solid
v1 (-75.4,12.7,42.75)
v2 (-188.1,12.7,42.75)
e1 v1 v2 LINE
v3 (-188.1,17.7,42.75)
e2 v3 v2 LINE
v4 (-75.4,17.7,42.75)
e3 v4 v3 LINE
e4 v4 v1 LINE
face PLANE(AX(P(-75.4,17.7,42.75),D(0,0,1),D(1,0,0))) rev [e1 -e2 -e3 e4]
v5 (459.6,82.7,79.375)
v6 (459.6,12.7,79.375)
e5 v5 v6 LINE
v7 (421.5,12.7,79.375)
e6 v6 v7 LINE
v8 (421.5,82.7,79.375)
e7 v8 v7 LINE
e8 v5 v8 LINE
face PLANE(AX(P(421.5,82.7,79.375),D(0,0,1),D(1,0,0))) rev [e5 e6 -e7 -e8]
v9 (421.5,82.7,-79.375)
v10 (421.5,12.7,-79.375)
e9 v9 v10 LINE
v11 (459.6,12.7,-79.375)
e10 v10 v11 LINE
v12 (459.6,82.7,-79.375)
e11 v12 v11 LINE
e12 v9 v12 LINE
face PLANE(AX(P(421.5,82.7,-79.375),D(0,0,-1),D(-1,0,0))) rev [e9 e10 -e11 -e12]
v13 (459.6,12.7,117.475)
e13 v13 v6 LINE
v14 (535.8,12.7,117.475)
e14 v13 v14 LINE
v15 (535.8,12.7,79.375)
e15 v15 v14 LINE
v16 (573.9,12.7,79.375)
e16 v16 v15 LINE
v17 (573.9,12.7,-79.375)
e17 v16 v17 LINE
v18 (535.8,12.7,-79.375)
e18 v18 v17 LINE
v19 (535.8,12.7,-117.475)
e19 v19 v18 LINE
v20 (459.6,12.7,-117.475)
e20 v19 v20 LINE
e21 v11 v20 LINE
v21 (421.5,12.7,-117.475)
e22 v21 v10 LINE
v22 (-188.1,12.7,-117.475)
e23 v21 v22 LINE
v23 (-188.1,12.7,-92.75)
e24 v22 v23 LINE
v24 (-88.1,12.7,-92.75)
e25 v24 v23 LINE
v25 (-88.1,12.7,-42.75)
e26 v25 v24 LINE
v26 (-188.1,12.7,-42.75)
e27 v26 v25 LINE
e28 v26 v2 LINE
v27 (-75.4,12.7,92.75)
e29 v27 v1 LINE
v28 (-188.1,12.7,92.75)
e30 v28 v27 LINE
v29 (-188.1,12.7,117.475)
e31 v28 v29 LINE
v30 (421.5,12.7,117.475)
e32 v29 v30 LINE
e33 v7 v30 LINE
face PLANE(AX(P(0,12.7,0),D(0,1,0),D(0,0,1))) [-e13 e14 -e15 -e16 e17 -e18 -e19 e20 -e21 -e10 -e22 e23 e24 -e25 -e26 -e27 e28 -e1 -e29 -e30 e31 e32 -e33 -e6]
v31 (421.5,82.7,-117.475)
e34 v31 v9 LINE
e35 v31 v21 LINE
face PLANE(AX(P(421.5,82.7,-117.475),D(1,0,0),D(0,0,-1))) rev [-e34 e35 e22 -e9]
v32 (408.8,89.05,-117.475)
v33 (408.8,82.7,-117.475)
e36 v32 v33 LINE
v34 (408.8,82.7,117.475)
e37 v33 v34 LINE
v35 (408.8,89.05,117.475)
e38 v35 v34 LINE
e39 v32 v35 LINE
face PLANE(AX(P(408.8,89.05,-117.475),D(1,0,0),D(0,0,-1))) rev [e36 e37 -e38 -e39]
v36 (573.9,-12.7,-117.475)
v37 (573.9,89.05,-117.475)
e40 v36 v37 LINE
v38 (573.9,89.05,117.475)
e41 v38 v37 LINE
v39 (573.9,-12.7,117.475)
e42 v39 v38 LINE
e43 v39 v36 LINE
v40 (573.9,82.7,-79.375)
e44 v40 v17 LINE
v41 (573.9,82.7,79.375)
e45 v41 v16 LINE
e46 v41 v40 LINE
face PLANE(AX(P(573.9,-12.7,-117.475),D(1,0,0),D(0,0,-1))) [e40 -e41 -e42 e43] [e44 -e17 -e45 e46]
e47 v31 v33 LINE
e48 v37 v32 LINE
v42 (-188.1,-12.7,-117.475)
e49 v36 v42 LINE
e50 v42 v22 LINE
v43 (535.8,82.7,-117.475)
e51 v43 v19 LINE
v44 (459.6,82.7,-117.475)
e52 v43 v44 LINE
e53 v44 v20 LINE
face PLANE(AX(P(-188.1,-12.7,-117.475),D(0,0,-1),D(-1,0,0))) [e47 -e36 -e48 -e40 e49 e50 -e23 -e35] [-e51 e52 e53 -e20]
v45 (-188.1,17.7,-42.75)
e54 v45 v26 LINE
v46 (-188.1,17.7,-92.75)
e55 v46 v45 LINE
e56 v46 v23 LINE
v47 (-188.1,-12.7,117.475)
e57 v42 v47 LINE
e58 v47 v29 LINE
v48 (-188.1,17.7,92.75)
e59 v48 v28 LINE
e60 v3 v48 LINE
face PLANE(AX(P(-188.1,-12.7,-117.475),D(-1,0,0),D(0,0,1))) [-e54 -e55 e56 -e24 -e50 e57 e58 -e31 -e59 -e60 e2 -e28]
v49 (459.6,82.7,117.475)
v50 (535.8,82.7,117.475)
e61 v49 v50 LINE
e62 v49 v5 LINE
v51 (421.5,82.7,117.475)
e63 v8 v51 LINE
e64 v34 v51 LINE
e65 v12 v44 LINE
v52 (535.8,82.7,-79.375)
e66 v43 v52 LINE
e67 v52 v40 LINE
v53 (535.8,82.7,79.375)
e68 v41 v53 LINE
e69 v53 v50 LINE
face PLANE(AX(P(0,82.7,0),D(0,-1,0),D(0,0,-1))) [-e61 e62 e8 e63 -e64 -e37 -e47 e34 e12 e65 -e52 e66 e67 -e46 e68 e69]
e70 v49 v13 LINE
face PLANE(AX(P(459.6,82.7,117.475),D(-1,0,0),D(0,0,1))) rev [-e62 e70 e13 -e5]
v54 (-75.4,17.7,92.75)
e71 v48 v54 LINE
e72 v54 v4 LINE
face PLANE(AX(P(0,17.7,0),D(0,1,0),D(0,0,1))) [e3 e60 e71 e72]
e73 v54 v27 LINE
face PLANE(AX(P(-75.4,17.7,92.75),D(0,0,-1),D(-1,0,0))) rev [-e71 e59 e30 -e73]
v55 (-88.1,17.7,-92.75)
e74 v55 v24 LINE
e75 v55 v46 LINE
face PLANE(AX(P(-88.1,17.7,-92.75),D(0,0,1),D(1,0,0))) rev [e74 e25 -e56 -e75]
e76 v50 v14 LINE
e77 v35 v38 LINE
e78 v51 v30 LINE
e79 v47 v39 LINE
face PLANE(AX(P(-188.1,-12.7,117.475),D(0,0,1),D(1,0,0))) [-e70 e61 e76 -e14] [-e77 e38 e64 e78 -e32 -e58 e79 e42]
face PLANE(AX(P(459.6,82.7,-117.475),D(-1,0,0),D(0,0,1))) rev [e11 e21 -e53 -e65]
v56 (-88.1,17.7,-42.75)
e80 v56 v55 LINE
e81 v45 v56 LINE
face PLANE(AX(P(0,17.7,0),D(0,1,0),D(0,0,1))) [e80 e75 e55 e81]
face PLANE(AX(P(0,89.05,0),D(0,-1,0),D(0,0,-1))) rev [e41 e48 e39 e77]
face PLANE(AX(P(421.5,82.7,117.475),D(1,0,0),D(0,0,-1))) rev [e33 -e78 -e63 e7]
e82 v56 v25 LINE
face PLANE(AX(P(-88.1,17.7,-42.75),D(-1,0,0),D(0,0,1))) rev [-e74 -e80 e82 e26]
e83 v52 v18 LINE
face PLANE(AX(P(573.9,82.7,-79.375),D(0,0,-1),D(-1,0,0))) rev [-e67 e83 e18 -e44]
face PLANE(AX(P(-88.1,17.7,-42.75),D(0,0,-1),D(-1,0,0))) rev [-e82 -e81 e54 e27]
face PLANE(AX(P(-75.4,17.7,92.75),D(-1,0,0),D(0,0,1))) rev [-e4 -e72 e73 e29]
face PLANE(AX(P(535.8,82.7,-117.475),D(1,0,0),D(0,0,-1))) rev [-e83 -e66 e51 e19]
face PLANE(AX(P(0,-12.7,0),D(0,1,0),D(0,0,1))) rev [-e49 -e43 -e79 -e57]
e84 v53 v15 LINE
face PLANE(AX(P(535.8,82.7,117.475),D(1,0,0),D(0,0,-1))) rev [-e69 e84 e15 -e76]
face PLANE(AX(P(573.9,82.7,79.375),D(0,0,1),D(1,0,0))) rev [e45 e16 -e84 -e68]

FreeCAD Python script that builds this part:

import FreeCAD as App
import Part
import Sketcher
from FreeCAD import Vector
Q = App.Units.Quantity

doc = App.newDocument("Part")
params = doc.addObject("Spreadsheet::Sheet", "Params")
for row, (alias, value) in enumerate([
    ("sketch1_width", "30 in"),
    ("sketch1_height", "9.25 in"),
    ("pad1_length", "1 in"),
    ("sketch2_width", "1.5 in"),
    ("pad2_length", "70 mm"),
    ("sketch3_width", "6.5 in"),
    ("sketch3_height", "9.25 in"),
    ("pad3_length", "0.25 in"),
    ("pad4_length", "5 mm"),
], start=1):
    params.set(f"A{row}", alias)
    params.set(f"B{row}", "=" + value)
    params.setAlias(f"B{row}", alias)

body = doc.addObject("PartDesign::Body", "Body")

sketch1 = body.newObject("Sketcher::SketchObject", "Sketch")
sketch1.AttachmentSupport = (doc.getObject("XZ_Plane"), [""])
sketch1.MapMode = "FlatFace"
sketch1.addGeometry(Part.LineSegment(Vector(-188, -117, 0), Vector(-188, 117, 0)), False)
sketch1.addGeometry(Part.LineSegment(Vector(-188, 117, 0), Vector(574, 117, 0)), False)
sketch1.addGeometry(Part.LineSegment(Vector(574, 117, 0), Vector(574, -117, 0)), False)
sketch1.addGeometry(Part.LineSegment(Vector(574, -117, 0), Vector(-188, -117, 0)), False)
sketch1.addConstraint(Sketcher.Constraint("Coincident", 0, 2, 1, 1))
sketch1.addConstraint(Sketcher.Constraint("Coincident", 1, 2, 2, 1))
sketch1.addConstraint(Sketcher.Constraint("Coincident", 2, 2, 3, 1))
sketch1.addConstraint(Sketcher.Constraint("Coincident", 3, 2, 0, 1))
sketch1.addConstraint(Sketcher.Constraint("Vertical", 0))
sketch1.addConstraint(Sketcher.Constraint("Horizontal", 1))
sketch1.addConstraint(Sketcher.Constraint("Vertical", 2))
sketch1.addConstraint(Sketcher.Constraint("Horizontal", 3))
sketch1.addConstraint(Sketcher.Constraint("DistanceX", 1, 1, 1, 2, Q("30 in")))
sketch1.addConstraint(Sketcher.Constraint("DistanceY", 0, 1, 0, 2, Q("9.25 in")))
sketch1.addConstraint(Sketcher.Constraint("DistanceY", -1, 1, 0, 2, Q("4.625 in")))
sketch1.addConstraint(Sketcher.Constraint("DistanceX", 0, 2, -1, 1, 188.1))
sketch1.setExpression("Constraints[8]", "Params.sketch1_width")
sketch1.setExpression("Constraints[9]", "Params.sketch1_height")
pad1 = body.newObject("PartDesign::Pad", "Pad")
pad1.Profile = sketch1
pad1.setExpression("Length", "Params.pad1_length")
pad1.Midplane = True

sketch2 = body.newObject("Sketcher::SketchObject", "Sketch001")
sketch2.AttachmentSupport = (doc.getObject("XZ_Plane"), [""])
sketch2.MapMode = "FlatFace"
sketch2.AttachmentOffset = App.Placement(Vector(0, 0, -0.5 * 25.4), App.Rotation())
sketch2.addGeometry(Part.LineSegment(Vector(536, -117, 0), Vector(536, -79, 0)), False)
sketch2.addGeometry(Part.LineSegment(Vector(536, -79, 0), Vector(574, -79, 0)), False)
sketch2.addGeometry(Part.LineSegment(Vector(574, -79, 0), Vector(574, -117, 0)), False)
sketch2.addGeometry(Part.LineSegment(Vector(574, -117, 0), Vector(536, -117, 0)), False)
sketch2.addGeometry(Part.LineSegment(Vector(536, 79, 0), Vector(536, 117, 0)), False)
sketch2.addGeometry(Part.LineSegment(Vector(536, 117, 0), Vector(574, 117, 0)), False)
sketch2.addGeometry(Part.LineSegment(Vector(574, 117, 0), Vector(574, 79, 0)), False)
sketch2.addGeometry(Part.LineSegment(Vector(574, 79, 0), Vector(536, 79, 0)), False)
sketch2.addGeometry(Part.LineSegment(Vector(422, 79, 0), Vector(422, 117, 0)), False)
sketch2.addGeometry(Part.LineSegment(Vector(422, 117, 0), Vector(460, 117, 0)), False)
sketch2.addGeometry(Part.LineSegment(Vector(460, 117, 0), Vector(460, 79, 0)), False)
sketch2.addGeometry(Part.LineSegment(Vector(460, 79, 0), Vector(422, 79, 0)), False)
sketch2.addGeometry(Part.LineSegment(Vector(422, -117, 0), Vector(422, -79, 0)), False)
sketch2.addGeometry(Part.LineSegment(Vector(422, -79, 0), Vector(460, -79, 0)), False)
sketch2.addGeometry(Part.LineSegment(Vector(460, -79, 0), Vector(460, -117, 0)), False)
sketch2.addGeometry(Part.LineSegment(Vector(460, -117, 0), Vector(422, -117, 0)), False)
sketch2.addConstraint(Sketcher.Constraint("Coincident", 0, 2, 1, 1))
sketch2.addConstraint(Sketcher.Constraint("Coincident", 1, 2, 2, 1))
sketch2.addConstraint(Sketcher.Constraint("Coincident", 2, 2, 3, 1))
sketch2.addConstraint(Sketcher.Constraint("Coincident", 3, 2, 0, 1))
sketch2.addConstraint(Sketcher.Constraint("Coincident", 4, 2, 5, 1))
sketch2.addConstraint(Sketcher.Constraint("Coincident", 5, 2, 6, 1))
sketch2.addConstraint(Sketcher.Constraint("Coincident", 6, 2, 7, 1))
sketch2.addConstraint(Sketcher.Constraint("Coincident", 7, 2, 4, 1))
sketch2.addConstraint(Sketcher.Constraint("Coincident", 8, 2, 9, 1))
sketch2.addConstraint(Sketcher.Constraint("Coincident", 9, 2, 10, 1))
sketch2.addConstraint(Sketcher.Constraint("Coincident", 10, 2, 11, 1))
sketch2.addConstraint(Sketcher.Constraint("Coincident", 11, 2, 8, 1))
sketch2.addConstraint(Sketcher.Constraint("Coincident", 12, 2, 13, 1))
sketch2.addConstraint(Sketcher.Constraint("Coincident", 13, 2, 14, 1))
sketch2.addConstraint(Sketcher.Constraint("Coincident", 14, 2, 15, 1))
sketch2.addConstraint(Sketcher.Constraint("Coincident", 15, 2, 12, 1))
sketch2.addConstraint(Sketcher.Constraint("Vertical", 0))
sketch2.addConstraint(Sketcher.Constraint("Horizontal", 1))
sketch2.addConstraint(Sketcher.Constraint("Vertical", 2))
sketch2.addConstraint(Sketcher.Constraint("Horizontal", 3))
sketch2.addConstraint(Sketcher.Constraint("Vertical", 4))
sketch2.addConstraint(Sketcher.Constraint("Horizontal", 5))
sketch2.addConstraint(Sketcher.Constraint("Vertical", 6))
sketch2.addConstraint(Sketcher.Constraint("Horizontal", 7))
sketch2.addConstraint(Sketcher.Constraint("Vertical", 8))
sketch2.addConstraint(Sketcher.Constraint("Horizontal", 9))
sketch2.addConstraint(Sketcher.Constraint("Vertical", 10))
sketch2.addConstraint(Sketcher.Constraint("Horizontal", 11))
sketch2.addConstraint(Sketcher.Constraint("Vertical", 12))
sketch2.addConstraint(Sketcher.Constraint("Horizontal", 13))
sketch2.addConstraint(Sketcher.Constraint("Vertical", 14))
sketch2.addConstraint(Sketcher.Constraint("Horizontal", 15))
sketch2.addConstraint(Sketcher.Constraint("Symmetric", 3, 2, 4, 2, -1))
sketch2.addConstraint(Sketcher.Constraint("Symmetric", 1, 2, 6, 2, -1))
sketch2.addConstraint(Sketcher.Constraint("Symmetric", 11, 2, 12, 2, -1))
sketch2.addConstraint(Sketcher.Constraint("Symmetric", 9, 2, 14, 2, -1))
sketch2.addConstraint(Sketcher.Constraint("Horizontal", 5, 2, 8, 2))
sketch2.addConstraint(Sketcher.Constraint("Horizontal", 7, 2, 10, 2))
sketch2.addConstraint(Sketcher.Constraint("Equal", 7, 9))
sketch2.addConstraint(Sketcher.Constraint("Equal", 15, 0))
sketch2.addConstraint(Sketcher.Constraint("DistanceX", 1, 1, 1, 2, Q("1.5 in")))
sketch2.addConstraint(Sketcher.Constraint("DistanceX", 8, 2, 5, 2, Q("6 in")))
sketch2.addConstraint(Sketcher.Constraint("DistanceY", 0, 2, 4, 2, Q("7.75 in")))
sketch2.addConstraint(Sketcher.Constraint("DistanceX", -1, 1, 0, 2, 535.8))
sketch2.setExpression("Constraints[40]", "Params.sketch2_width")
pad2 = body.newObject("PartDesign::Pad", "Pad001")
pad2.Profile = sketch2
pad2.setExpression("Length", "Params.pad2_length")
pad2.Reversed = True

sketch3 = body.newObject("Sketcher::SketchObject", "Sketch002")
sketch3.AttachmentSupport = (doc.getObject("XZ_Plane"), [""])
sketch3.MapMode = "FlatFace"
sketch3.AttachmentOffset = App.Placement(Vector(0, 0, -82.7), App.Rotation())
sketch3.addGeometry(Part.LineSegment(Vector(409, -117, 0), Vector(409, 117, 0)), False)
sketch3.addGeometry(Part.LineSegment(Vector(409, 117, 0), Vector(574, 117, 0)), False)
sketch3.addGeometry(Part.LineSegment(Vector(574, 117, 0), Vector(574, -117, 0)), False)
sketch3.addGeometry(Part.LineSegment(Vector(574, -117, 0), Vector(409, -117, 0)), False)
sketch3.addConstraint(Sketcher.Constraint("Coincident", 0, 2, 1, 1))
sketch3.addConstraint(Sketcher.Constraint("Coincident", 1, 2, 2, 1))
sketch3.addConstraint(Sketcher.Constraint("Coincident", 2, 2, 3, 1))
sketch3.addConstraint(Sketcher.Constraint("Coincident", 3, 2, 0, 1))
sketch3.addConstraint(Sketcher.Constraint("Vertical", 0))
sketch3.addConstraint(Sketcher.Constraint("Horizontal", 1))
sketch3.addConstraint(Sketcher.Constraint("Vertical", 2))
sketch3.addConstraint(Sketcher.Constraint("Horizontal", 3))
sketch3.addConstraint(Sketcher.Constraint("DistanceX", 1, 1, 1, 2, Q("6.5 in")))
sketch3.addConstraint(Sketcher.Constraint("DistanceY", 0, 1, 0, 2, Q("9.25 in")))
sketch3.addConstraint(Sketcher.Constraint("DistanceY", -1, 1, 0, 2, Q("4.625 in")))
sketch3.addConstraint(Sketcher.Constraint("DistanceX", -1, 1, 0, 2, 408.8))
sketch3.setExpression("Constraints[8]", "Params.sketch3_width")
sketch3.setExpression("Constraints[9]", "Params.sketch3_height")
pad3 = body.newObject("PartDesign::Pad", "Pad002")
pad3.Profile = sketch3
pad3.setExpression("Length", "Params.pad3_length")
pad3.Reversed = True

sketch4 = body.newObject("Sketcher::SketchObject", "Sketch003")
sketch4.AttachmentSupport = (doc.getObject("XZ_Plane"), [""])
sketch4.MapMode = "FlatFace"
sketch4.AttachmentOffset = App.Placement(Vector(0, 0, -0.5 * 25.4), App.Rotation())
sketch4.addGeometry(Part.LineSegment(Vector(-188, -93, 0), Vector(-188, -43, 0)), False)
sketch4.addGeometry(Part.LineSegment(Vector(-188, -43, 0), Vector(-88, -43, 0)), False)
sketch4.addGeometry(Part.LineSegment(Vector(-88, -43, 0), Vector(-88, -93, 0)), False)
sketch4.addGeometry(Part.LineSegment(Vector(-88, -93, 0), Vector(-188, -93, 0)), False)
sketch4.addGeometry(Part.LineSegment(Vector(-188, 43, 0), Vector(-188, 93, 0)), False)
sketch4.addGeometry(Part.LineSegment(Vector(-188, 93, 0), Vector(-75, 93, 0)), False)
sketch4.addGeometry(Part.LineSegment(Vector(-75, 93, 0), Vector(-75, 43, 0)), False)
sketch4.addGeometry(Part.LineSegment(Vector(-75, 43, 0), Vector(-188, 43, 0)), False)
sketch4.addConstraint(Sketcher.Constraint("Coincident", 0, 2, 1, 1))
sketch4.addConstraint(Sketcher.Constraint("Coincident", 1, 2, 2, 1))
sketch4.addConstraint(Sketcher.Constraint("Coincident", 2, 2, 3, 1))
sketch4.addConstraint(Sketcher.Constraint("Coincident", 3, 2, 0, 1))
sketch4.addConstraint(Sketcher.Constraint("Coincident", 4, 2, 5, 1))
sketch4.addConstraint(Sketcher.Constraint("Coincident", 5, 2, 6, 1))
sketch4.addConstraint(Sketcher.Constraint("Coincident", 6, 2, 7, 1))
sketch4.addConstraint(Sketcher.Constraint("Coincident", 7, 2, 4, 1))
sketch4.addConstraint(Sketcher.Constraint("Vertical", 0))
sketch4.addConstraint(Sketcher.Constraint("Horizontal", 1))
sketch4.addConstraint(Sketcher.Constraint("Vertical", 2))
sketch4.addConstraint(Sketcher.Constraint("Horizontal", 3))
sketch4.addConstraint(Sketcher.Constraint("Vertical", 4))
sketch4.addConstraint(Sketcher.Constraint("Horizontal", 5))
sketch4.addConstraint(Sketcher.Constraint("Vertical", 6))
sketch4.addConstraint(Sketcher.Constraint("Horizontal", 7))
sketch4.addConstraint(Sketcher.Constraint("Symmetric", 3, 2, 4, 2, -1))
sketch4.addConstraint(Sketcher.Constraint("Equal", 2, 4))
sketch4.addConstraint(Sketcher.Constraint("DistanceX", 1, 2, 5, 2, Q("0.5 in")))
sketch4.addConstraint(Sketcher.Constraint("DistanceX", 1, 1, 1, 2, 100.0))
sketch4.addConstraint(Sketcher.Constraint("DistanceY", 0, 1, 0, 2, 50.0))
sketch4.addConstraint(Sketcher.Constraint("DistanceX", 0, 2, -1, 1, 188.1))
sketch4.addConstraint(Sketcher.Constraint("DistanceY", 0, 2, -1, 1, 42.75))
pad4 = body.newObject("PartDesign::Pad", "Pad003")
pad4.Profile = sketch4
pad4.setExpression("Length", "Params.pad4_length")
pad4.Reversed = True

doc.recompute()
